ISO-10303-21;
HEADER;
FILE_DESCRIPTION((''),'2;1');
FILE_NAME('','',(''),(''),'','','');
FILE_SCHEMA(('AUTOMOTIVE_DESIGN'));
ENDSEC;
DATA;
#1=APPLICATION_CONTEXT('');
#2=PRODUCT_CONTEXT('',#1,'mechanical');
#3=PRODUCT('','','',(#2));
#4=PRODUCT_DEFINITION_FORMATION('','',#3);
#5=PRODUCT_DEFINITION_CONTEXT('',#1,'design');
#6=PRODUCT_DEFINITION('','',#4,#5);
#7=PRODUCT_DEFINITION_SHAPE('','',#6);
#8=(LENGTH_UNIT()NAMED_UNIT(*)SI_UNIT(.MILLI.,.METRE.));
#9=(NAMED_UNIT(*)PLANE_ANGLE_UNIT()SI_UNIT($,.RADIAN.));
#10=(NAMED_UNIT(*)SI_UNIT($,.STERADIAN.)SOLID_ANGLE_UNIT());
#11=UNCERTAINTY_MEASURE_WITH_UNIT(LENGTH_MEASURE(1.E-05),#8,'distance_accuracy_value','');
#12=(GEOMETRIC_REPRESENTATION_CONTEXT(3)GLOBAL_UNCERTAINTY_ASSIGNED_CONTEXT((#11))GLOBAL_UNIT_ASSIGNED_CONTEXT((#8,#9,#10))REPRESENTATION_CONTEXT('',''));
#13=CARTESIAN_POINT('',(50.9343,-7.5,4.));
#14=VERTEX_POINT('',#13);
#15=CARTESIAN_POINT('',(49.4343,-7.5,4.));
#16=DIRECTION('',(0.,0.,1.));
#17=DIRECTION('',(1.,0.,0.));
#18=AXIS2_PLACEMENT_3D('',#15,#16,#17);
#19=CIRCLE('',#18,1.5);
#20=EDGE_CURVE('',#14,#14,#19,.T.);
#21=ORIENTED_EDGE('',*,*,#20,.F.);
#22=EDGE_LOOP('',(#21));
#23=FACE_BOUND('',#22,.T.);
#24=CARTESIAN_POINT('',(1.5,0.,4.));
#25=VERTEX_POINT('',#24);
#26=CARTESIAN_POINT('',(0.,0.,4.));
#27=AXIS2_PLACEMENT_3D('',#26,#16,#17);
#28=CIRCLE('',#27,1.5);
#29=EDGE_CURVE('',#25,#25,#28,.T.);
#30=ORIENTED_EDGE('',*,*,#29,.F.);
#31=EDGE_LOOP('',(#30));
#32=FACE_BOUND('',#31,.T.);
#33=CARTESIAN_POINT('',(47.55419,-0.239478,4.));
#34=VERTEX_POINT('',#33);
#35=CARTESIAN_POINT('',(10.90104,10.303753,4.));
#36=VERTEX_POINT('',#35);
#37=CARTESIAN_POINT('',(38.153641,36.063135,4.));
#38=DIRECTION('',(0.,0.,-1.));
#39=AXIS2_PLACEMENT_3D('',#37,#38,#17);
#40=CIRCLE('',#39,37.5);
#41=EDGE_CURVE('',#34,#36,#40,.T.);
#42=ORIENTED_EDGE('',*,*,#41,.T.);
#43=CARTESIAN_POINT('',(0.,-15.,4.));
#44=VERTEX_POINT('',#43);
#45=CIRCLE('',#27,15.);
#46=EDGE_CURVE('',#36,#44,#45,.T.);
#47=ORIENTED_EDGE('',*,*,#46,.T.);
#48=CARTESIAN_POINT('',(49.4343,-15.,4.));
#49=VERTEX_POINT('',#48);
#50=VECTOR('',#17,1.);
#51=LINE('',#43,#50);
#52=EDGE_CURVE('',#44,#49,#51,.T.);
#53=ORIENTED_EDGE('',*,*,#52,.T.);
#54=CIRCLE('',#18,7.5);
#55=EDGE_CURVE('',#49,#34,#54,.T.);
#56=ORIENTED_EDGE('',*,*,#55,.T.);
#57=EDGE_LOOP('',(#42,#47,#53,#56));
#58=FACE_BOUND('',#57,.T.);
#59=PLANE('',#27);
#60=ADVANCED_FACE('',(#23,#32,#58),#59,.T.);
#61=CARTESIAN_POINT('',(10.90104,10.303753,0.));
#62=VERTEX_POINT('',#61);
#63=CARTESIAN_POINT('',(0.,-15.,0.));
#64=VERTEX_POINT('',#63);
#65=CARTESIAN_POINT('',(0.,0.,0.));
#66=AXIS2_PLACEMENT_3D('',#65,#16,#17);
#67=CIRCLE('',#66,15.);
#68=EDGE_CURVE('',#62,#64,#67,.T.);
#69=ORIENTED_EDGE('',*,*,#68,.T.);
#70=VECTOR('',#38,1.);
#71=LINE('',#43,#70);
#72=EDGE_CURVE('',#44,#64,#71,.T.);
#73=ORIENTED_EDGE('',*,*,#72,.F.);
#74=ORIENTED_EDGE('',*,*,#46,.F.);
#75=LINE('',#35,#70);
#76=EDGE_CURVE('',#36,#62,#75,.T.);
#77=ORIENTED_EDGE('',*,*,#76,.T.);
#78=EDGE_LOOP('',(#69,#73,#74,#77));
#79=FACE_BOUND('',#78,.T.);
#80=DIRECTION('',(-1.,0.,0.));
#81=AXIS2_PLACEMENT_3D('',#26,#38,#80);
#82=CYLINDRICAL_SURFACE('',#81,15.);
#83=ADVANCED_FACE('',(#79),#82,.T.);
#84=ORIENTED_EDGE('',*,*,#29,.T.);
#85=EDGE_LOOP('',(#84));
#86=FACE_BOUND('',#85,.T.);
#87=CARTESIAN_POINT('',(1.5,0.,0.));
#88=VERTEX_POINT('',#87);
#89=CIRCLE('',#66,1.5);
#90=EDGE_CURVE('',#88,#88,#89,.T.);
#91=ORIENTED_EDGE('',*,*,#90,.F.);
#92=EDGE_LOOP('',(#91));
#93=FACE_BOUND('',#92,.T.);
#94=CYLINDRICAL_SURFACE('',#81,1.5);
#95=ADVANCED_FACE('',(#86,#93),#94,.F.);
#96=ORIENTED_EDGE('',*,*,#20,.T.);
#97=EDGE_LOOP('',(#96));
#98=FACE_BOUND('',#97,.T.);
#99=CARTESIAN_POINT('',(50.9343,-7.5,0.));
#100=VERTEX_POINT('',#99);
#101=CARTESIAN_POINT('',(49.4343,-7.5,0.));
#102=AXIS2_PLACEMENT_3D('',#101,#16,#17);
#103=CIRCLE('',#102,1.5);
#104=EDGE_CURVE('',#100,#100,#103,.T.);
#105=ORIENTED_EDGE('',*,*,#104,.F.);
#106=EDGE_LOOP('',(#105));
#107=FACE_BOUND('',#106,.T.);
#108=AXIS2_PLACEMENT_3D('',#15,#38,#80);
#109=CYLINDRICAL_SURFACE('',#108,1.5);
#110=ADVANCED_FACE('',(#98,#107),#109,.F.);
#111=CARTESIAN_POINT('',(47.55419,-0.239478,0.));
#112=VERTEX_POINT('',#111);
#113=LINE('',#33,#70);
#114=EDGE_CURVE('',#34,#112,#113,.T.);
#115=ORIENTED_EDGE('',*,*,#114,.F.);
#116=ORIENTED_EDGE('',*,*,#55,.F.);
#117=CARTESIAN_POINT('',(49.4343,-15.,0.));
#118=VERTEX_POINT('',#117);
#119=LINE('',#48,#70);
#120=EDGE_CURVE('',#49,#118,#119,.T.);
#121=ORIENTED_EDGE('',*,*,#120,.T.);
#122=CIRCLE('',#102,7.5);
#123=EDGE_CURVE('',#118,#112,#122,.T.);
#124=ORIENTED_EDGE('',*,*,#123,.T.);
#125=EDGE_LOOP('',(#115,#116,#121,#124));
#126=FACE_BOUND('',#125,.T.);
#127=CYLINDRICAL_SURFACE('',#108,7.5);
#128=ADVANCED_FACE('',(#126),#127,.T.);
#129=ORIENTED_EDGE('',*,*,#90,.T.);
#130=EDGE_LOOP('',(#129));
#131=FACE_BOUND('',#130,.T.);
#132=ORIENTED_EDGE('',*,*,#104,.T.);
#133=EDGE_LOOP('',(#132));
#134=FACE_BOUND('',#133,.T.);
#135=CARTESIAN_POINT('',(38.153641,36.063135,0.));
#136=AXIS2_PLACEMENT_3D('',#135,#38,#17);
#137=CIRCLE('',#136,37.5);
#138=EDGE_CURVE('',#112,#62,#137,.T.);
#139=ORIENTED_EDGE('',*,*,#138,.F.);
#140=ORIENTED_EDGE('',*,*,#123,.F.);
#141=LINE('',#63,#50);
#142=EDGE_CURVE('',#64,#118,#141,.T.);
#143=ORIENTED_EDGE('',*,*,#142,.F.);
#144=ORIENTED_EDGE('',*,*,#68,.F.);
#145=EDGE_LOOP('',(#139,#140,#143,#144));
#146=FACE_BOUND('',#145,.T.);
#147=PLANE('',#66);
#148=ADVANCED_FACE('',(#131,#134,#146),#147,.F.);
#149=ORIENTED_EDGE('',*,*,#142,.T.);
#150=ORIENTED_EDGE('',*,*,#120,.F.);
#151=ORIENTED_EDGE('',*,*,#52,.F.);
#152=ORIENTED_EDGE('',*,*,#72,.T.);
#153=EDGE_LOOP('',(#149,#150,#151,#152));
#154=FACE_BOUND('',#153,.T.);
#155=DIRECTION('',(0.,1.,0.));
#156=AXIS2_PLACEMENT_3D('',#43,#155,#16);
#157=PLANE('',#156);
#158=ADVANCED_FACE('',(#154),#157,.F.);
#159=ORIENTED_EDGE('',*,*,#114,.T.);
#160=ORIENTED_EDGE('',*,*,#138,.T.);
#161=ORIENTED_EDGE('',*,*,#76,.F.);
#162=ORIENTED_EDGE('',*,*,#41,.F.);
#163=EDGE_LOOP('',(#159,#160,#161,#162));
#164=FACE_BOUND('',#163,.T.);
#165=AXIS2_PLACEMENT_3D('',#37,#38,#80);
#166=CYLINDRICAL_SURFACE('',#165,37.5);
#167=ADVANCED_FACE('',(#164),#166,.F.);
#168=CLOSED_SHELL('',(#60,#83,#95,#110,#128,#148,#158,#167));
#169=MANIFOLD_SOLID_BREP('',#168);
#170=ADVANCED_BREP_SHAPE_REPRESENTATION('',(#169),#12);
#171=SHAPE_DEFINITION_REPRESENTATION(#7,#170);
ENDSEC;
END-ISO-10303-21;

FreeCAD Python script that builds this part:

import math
import FreeCAD as App
import Part
import Sketcher

V = App.Vector

doc = App.newDocument("Part")
body = doc.addObject("PartDesign::Body", "Body")

sketch1 = doc.addObject("Sketcher::SketchObject", "Sketch")
body.addObject(sketch1)
sketch1.AttachmentSupport = (doc.XY_Plane, [""])
sketch1.MapMode = "FlatFace"
sketch1.addGeometry([
    Part.LineSegment(V(0, -15, 0), V(49.4, -15, 0)),
    Part.ArcOfCircle(Part.Circle(V(49.4, -7.5, 0), V(0, 0, 1), 7.5), math.radians(-90), math.radians(105)),
    Part.ArcOfCircle(Part.Circle(V(38.2, 36.1, 0), V(0, 0, 1), 37.5), math.radians(-137), math.radians(-75)),
    Part.ArcOfCircle(Part.Circle(V(0, 0, 0), V(0, 0, 1), 15), math.radians(43), math.radians(270)),
    Part.Circle(V(49.4, -7.5, 0), V(0, 0, 1), 1.5),
    Part.Circle(V(0, 0, 0), V(0, 0, 1), 1.5),
], False)
sketch1.addConstraint([
    Sketcher.Constraint("Tangent", 0, 2, 1, 1),
    Sketcher.Constraint("Tangent", 1, 2, 2, 2),
    Sketcher.Constraint("Tangent", 2, 1, 3, 1),
    Sketcher.Constraint("Tangent", 3, 2, 0, 1),
    Sketcher.Constraint("Horizontal", 0),
    Sketcher.Constraint("Coincident", 3, 3, -1, 1),
    Sketcher.Constraint("Coincident", 5, 3, -1, 1),
    Sketcher.Constraint("Coincident", 4, 3, 1, 3),
    Sketcher.Constraint("Equal", 4, 5),
    Sketcher.Constraint("Diameter", 4, 3.0),
    Sketcher.Constraint("Radius", 3, 15.0),
    Sketcher.Constraint("Radius", 1, 7.5),
    Sketcher.Constraint("Radius", 2, 37.5),
    Sketcher.Constraint("DistanceX", 0, 1, 0, 2, 49.4343),
])
pad1 = doc.addObject("PartDesign::Pad", "Pad")
body.addObject(pad1)
pad1.Profile = sketch1
pad1.Length = 4

doc.recompute()
